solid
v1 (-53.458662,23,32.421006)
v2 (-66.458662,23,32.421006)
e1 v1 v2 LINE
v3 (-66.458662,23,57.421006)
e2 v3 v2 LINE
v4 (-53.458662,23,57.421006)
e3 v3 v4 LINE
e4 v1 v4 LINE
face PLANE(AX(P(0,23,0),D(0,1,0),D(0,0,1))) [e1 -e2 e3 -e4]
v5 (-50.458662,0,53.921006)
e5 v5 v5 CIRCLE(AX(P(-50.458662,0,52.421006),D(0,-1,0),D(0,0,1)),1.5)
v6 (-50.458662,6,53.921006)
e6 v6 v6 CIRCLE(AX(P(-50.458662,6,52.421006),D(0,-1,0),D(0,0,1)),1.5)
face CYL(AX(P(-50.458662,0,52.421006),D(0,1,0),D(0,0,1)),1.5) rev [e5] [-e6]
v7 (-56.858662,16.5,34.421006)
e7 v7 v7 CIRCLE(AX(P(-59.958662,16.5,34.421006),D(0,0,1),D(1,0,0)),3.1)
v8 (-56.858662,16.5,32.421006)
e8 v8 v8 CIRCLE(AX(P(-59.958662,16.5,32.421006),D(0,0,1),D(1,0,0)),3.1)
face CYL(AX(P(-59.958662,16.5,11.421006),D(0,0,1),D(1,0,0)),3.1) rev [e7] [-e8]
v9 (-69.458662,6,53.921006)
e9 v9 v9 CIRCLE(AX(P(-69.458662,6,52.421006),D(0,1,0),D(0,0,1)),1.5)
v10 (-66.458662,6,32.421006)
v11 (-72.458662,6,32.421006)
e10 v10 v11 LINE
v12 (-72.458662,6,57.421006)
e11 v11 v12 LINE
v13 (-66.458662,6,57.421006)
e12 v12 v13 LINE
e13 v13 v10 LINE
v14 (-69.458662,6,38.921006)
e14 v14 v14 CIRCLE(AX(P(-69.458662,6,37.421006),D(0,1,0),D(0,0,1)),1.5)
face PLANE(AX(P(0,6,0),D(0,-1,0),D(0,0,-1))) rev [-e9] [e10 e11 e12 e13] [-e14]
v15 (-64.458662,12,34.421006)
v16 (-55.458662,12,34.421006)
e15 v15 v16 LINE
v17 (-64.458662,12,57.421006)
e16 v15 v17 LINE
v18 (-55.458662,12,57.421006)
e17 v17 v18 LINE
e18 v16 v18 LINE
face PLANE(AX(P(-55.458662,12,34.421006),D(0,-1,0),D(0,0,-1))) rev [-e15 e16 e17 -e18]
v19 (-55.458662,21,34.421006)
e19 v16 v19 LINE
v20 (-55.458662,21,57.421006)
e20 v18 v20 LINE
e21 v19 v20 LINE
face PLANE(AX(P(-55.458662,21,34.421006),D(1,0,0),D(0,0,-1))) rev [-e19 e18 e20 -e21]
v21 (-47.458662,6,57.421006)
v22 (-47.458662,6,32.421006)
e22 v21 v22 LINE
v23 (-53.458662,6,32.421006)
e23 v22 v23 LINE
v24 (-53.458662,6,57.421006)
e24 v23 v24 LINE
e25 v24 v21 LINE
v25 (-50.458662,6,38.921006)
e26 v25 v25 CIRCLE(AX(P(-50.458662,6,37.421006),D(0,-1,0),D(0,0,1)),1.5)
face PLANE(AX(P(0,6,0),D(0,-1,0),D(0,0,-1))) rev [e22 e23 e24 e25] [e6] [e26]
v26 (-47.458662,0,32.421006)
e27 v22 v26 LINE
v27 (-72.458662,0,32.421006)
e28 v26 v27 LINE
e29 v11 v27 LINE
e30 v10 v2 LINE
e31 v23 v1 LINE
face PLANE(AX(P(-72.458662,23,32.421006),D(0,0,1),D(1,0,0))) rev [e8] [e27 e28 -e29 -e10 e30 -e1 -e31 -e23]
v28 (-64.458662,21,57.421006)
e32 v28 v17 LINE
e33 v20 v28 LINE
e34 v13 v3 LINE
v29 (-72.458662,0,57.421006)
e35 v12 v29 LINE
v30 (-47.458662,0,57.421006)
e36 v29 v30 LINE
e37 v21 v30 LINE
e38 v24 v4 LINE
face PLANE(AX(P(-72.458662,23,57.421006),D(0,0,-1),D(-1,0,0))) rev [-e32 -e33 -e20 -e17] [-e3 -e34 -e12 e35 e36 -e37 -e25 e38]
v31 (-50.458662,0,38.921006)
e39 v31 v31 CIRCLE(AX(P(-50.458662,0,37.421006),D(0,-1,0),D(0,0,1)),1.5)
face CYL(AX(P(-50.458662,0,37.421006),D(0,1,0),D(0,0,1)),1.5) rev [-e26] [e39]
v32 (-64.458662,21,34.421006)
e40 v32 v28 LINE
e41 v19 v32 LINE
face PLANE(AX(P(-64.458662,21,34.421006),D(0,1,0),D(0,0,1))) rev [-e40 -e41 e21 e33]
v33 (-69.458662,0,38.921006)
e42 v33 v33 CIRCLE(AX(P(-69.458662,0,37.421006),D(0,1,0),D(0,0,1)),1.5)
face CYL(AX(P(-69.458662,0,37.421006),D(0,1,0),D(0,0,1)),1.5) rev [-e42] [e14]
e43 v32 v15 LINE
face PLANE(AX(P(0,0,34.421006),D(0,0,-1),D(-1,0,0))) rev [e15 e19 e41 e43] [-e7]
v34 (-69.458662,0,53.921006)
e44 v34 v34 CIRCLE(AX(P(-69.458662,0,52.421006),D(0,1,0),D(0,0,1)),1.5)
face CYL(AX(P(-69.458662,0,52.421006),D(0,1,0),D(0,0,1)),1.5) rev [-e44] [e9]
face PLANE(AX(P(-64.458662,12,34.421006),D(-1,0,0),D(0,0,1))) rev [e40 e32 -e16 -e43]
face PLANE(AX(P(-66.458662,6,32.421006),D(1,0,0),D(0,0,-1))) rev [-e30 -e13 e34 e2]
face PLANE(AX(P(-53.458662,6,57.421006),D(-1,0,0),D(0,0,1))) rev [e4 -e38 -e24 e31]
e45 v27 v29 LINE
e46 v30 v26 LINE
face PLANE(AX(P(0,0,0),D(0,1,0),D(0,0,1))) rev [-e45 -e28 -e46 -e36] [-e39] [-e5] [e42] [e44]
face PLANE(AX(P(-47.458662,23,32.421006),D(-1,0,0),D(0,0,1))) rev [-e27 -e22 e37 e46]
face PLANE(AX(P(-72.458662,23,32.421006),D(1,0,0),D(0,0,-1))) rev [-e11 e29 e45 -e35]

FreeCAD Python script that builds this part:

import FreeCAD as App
import Part
import Sketcher

V = App.Vector
Q = App.Units.Quantity

doc = App.newDocument("Part")
body = doc.addObject("PartDesign::Body", "Body")

sketch1 = doc.addObject("Sketcher::SketchObject", "Sketch")
body.addObject(sketch1)
sketch1.AttachmentSupport = (doc.XZ_Plane, [""])
sketch1.MapMode = "FlatFace"
sketch1.addGeometry(Part.LineSegment(V(-72, 32, 0), V(-72, 57, 0)), False)
sketch1.addGeometry(Part.LineSegment(V(-72, 57, 0), V(-47, 57, 0)), False)
sketch1.addGeometry(Part.LineSegment(V(-47, 57, 0), V(-47, 32, 0)), False)
sketch1.addGeometry(Part.LineSegment(V(-47, 32, 0), V(-72, 32, 0)), False)
sketch1.addConstraint(Sketcher.Constraint("Coincident", 0, 2, 1, 1))
sketch1.addConstraint(Sketcher.Constraint("Coincident", 1, 2, 2, 1))
sketch1.addConstraint(Sketcher.Constraint("Coincident", 2, 2, 3, 1))
sketch1.addConstraint(Sketcher.Constraint("Coincident", 3, 2, 0, 1))
sketch1.addConstraint(Sketcher.Constraint("Vertical", 0))
sketch1.addConstraint(Sketcher.Constraint("Horizontal", 1))
sketch1.addConstraint(Sketcher.Constraint("Vertical", 2))
sketch1.addConstraint(Sketcher.Constraint("Horizontal", 3))
sketch1.addConstraint(Sketcher.Constraint("Equal", 3, 0))
sketch1.addConstraint(Sketcher.Constraint("DistanceX", 1, 1, 1, 2, Q("25 mm")))
sketch1.addConstraint(Sketcher.Constraint("DistanceX", 0, 2, -1, 1, Q("72.458662 mm")))
sketch1.addConstraint(Sketcher.Constraint("DistanceY", -1, 1, 0, 2, Q("57.421006 mm")))
pad1 = doc.addObject("PartDesign::Pad", "Pad")
body.addObject(pad1)
pad1.Profile = sketch1
pad1.Length = 23
pad1.Reversed = True

sketch2 = doc.addObject("Sketcher::SketchObject", "Sketch001")
body.addObject(sketch2)
sketch2.AttachmentSupport = (doc.XZ_Plane, [""])
sketch2.MapMode = "FlatFace"
sketch2.AttachmentOffset = App.Placement(V(0, 0, -23), App.Rotation())
sketch2.addGeometry(Part.LineSegment(V(-72, 32, 0), V(-72, 57, 0)), False)
sketch2.addGeometry(Part.LineSegment(V(-72, 57, 0), V(-66, 57, 0)), False)
sketch2.addGeometry(Part.LineSegment(V(-66, 57, 0), V(-66, 32, 0)), False)
sketch2.addGeometry(Part.LineSegment(V(-66, 32, 0), V(-72, 32, 0)), False)
sketch2.addGeometry(Part.LineSegment(V(-53, 32, 0), V(-53, 57, 0)), False)
sketch2.addGeometry(Part.LineSegment(V(-53, 57, 0), V(-47, 57, 0)), False)
sketch2.addGeometry(Part.LineSegment(V(-47, 57, 0), V(-47, 32, 0)), False)
sketch2.addGeometry(Part.LineSegment(V(-47, 32, 0), V(-53, 32, 0)), False)
sketch2.addConstraint(Sketcher.Constraint("Coincident", 0, 2, 1, 1))
sketch2.addConstraint(Sketcher.Constraint("Coincident", 1, 2, 2, 1))
sketch2.addConstraint(Sketcher.Constraint("Coincident", 2, 2, 3, 1))
sketch2.addConstraint(Sketcher.Constraint("Coincident", 3, 2, 0, 1))
sketch2.addConstraint(Sketcher.Constraint("Coincident", 4, 2, 5, 1))
sketch2.addConstraint(Sketcher.Constraint("Coincident", 5, 2, 6, 1))
sketch2.addConstraint(Sketcher.Constraint("Coincident", 6, 2, 7, 1))
sketch2.addConstraint(Sketcher.Constraint("Coincident", 7, 2, 4, 1))
sketch2.addConstraint(Sketcher.Constraint("Vertical", 0))
sketch2.addConstraint(Sketcher.Constraint("Horizontal", 1))
sketch2.addConstraint(Sketcher.Constraint("Vertical", 2))
sketch2.addConstraint(Sketcher.Constraint("Horizontal", 3))
sketch2.addConstraint(Sketcher.Constraint("Vertical", 4))
sketch2.addConstraint(Sketcher.Constraint("Horizontal", 5))
sketch2.addConstraint(Sketcher.Constraint("Vertical", 6))
sketch2.addConstraint(Sketcher.Constraint("Horizontal", 7))
sketch2.addConstraint(Sketcher.Constraint("Horizontal", 1, 2, 4, 2))
sketch2.addConstraint(Sketcher.Constraint("Horizontal", 3, 2, 6, 2))
sketch2.addConstraint(Sketcher.Constraint("Equal", 3, 5))
sketch2.addConstraint(Sketcher.Constraint("DistanceX", 1, 1, 1, 2, Q("6 mm")))
sketch2.addConstraint(Sketcher.Constraint("DistanceY", 0, 1, 0, 2, Q("25 mm")))
sketch2.addConstraint(Sketcher.Constraint("DistanceX", 1, 2, 4, 2, Q("13 mm")))
sketch2.addConstraint(Sketcher.Constraint("DistanceX", 0, 2, -1, 1, Q("72.458662 mm")))
sketch2.addConstraint(Sketcher.Constraint("DistanceY", -1, 1, 0, 2, Q("57.421006 mm")))
pocket1 = doc.addObject("PartDesign::Pocket", "Pocket")
body.addObject(pocket1)
pocket1.Profile = sketch2
pocket1.Length = 17
pocket1.Reversed = True

sketch3 = doc.addObject("Sketcher::SketchObject", "Sketch002")
body.addObject(sketch3)
sketch3.AttachmentSupport = (doc.XZ_Plane, [""])
sketch3.MapMode = "FlatFace"
sketch3.AttachmentOffset = App.Placement(V(0, 0, -6), App.Rotation())
sketch3.addGeometry(Part.Circle(V(-69.5, 37.4, 0), V(0, 0, 1), 1.5), False)
sketch3.addGeometry(Part.Circle(V(-69.5, 52.4, 0), V(0, 0, 1), 1.5), False)
sketch3.addConstraint(Sketcher.Constraint("Equal", 0, 1))
sketch3.addConstraint(Sketcher.Constraint("Vertical", 0, 3, 1, 3))
sketch3.addConstraint(Sketcher.Constraint("Diameter", 0, Q("3 mm")))
sketch3.addConstraint(Sketcher.Constraint("DistanceY", 0, 3, 1, 3, Q("15 mm")))
sketch3.addConstraint(Sketcher.Constraint("DistanceX", 0, 3, -1, 1, Q("69.458662 mm")))
sketch3.addConstraint(Sketcher.Constraint("DistanceY", -1, 1, 0, 3, Q("37.421006 mm")))
pocket2 = doc.addObject("PartDesign::Pocket", "Pocket001")
body.addObject(pocket2)
pocket2.Profile = sketch3
pocket2.Length = 6
pocket2.Reversed = True
doc.recompute()

datumplane = doc.addObject("PartDesign::Plane", "DatumPlane")
body.addObject(datumplane)
datumplane.AttachmentSupport = (doc.YZ_Plane, [""])
datumplane.MapMode = "FlatFace"
datumplane.AttachmentOffset = App.Placement(V(0, 0, -59.958662), App.Rotation())
mirrored = doc.addObject("PartDesign::Mirrored", "Mirrored")
body.addObject(mirrored)
mirrored.Originals = [pocket2]
mirrored.MirrorPlane = (datumplane, [""])
body.Tip = mirrored

sketch4 = doc.addObject("Sketcher::SketchObject", "Sketch003")
body.addObject(sketch4)
sketch4.AttachmentSupport = (doc.XY_Plane, [""])
sketch4.MapMode = "FlatFace"
sketch4.AttachmentOffset = App.Placement(V(0, 0, 57.421006), App.Rotation())
sketch4.addGeometry(Part.LineSegment(V(-64, 21, 0), V(-64, 12, 0)), False)
sketch4.addGeometry(Part.LineSegment(V(-64, 12, 0), V(-55, 12, 0)), False)
sketch4.addGeometry(Part.LineSegment(V(-55, 12, 0), V(-55, 21, 0)), False)
sketch4.addGeometry(Part.LineSegment(V(-55, 21, 0), V(-64, 21, 0)), False)
sketch4.addConstraint(Sketcher.Constraint("Coincident", 0, 2, 1, 1))
sketch4.addConstraint(Sketcher.Constraint("Coincident", 1, 2, 2, 1))
sketch4.addConstraint(Sketcher.Constraint("Coincident", 2, 2, 3, 1))
sketch4.addConstraint(Sketcher.Constraint("Coincident", 3, 2, 0, 1))
sketch4.addConstraint(Sketcher.Constraint("Vertical", 0))
sketch4.addConstraint(Sketcher.Constraint("Horizontal", 1))
sketch4.addConstraint(Sketcher.Constraint("Vertical", 2))
sketch4.addConstraint(Sketcher.Constraint("Horizontal", 3))
sketch4.addConstraint(Sketcher.Constraint("Equal", 3, 0))
sketch4.addConstraint(Sketcher.Constraint("DistanceX", 1, 1, 1, 2, Q("9 mm")))
sketch4.addConstraint(Sketcher.Constraint("DistanceY", -1, 1, 0, 2, Q("12 mm")))
sketch4.addConstraint(Sketcher.Constraint("DistanceX", 0, 2, -1, 1, Q("64.458662 mm")))
pocket3 = doc.addObject("PartDesign::Pocket", "Pocket002")
body.addObject(pocket3)
pocket3.Profile = sketch4
pocket3.Length = 23

sketch5 = doc.addObject("Sketcher::SketchObject", "Sketch004")
body.addObject(sketch5)
sketch5.AttachmentSupport = (doc.XY_Plane, [""])
sketch5.MapMode = "FlatFace"
sketch5.AttachmentOffset = App.Placement(V(0, 0, 34.421006), App.Rotation())
sketch5.addGeometry(Part.Circle(V(-60, 16.5, 0), V(0, 0, 1), 3.1), False)
sketch5.addConstraint(Sketcher.Constraint("Diameter", 0, Q("6.2 mm")))
sketch5.addConstraint(Sketcher.Constraint("DistanceY", -1, 1, 0, 3, Q("16.5 mm")))
sketch5.addConstraint(Sketcher.Constraint("DistanceX", 0, 3, -1, 1, Q("59.958662 mm")))
pocket4 = doc.addObject("PartDesign::Pocket", "Pocket003")
body.addObject(pocket4)
pocket4.Profile = sketch5
pocket4.Length = 23

doc.recompute()
